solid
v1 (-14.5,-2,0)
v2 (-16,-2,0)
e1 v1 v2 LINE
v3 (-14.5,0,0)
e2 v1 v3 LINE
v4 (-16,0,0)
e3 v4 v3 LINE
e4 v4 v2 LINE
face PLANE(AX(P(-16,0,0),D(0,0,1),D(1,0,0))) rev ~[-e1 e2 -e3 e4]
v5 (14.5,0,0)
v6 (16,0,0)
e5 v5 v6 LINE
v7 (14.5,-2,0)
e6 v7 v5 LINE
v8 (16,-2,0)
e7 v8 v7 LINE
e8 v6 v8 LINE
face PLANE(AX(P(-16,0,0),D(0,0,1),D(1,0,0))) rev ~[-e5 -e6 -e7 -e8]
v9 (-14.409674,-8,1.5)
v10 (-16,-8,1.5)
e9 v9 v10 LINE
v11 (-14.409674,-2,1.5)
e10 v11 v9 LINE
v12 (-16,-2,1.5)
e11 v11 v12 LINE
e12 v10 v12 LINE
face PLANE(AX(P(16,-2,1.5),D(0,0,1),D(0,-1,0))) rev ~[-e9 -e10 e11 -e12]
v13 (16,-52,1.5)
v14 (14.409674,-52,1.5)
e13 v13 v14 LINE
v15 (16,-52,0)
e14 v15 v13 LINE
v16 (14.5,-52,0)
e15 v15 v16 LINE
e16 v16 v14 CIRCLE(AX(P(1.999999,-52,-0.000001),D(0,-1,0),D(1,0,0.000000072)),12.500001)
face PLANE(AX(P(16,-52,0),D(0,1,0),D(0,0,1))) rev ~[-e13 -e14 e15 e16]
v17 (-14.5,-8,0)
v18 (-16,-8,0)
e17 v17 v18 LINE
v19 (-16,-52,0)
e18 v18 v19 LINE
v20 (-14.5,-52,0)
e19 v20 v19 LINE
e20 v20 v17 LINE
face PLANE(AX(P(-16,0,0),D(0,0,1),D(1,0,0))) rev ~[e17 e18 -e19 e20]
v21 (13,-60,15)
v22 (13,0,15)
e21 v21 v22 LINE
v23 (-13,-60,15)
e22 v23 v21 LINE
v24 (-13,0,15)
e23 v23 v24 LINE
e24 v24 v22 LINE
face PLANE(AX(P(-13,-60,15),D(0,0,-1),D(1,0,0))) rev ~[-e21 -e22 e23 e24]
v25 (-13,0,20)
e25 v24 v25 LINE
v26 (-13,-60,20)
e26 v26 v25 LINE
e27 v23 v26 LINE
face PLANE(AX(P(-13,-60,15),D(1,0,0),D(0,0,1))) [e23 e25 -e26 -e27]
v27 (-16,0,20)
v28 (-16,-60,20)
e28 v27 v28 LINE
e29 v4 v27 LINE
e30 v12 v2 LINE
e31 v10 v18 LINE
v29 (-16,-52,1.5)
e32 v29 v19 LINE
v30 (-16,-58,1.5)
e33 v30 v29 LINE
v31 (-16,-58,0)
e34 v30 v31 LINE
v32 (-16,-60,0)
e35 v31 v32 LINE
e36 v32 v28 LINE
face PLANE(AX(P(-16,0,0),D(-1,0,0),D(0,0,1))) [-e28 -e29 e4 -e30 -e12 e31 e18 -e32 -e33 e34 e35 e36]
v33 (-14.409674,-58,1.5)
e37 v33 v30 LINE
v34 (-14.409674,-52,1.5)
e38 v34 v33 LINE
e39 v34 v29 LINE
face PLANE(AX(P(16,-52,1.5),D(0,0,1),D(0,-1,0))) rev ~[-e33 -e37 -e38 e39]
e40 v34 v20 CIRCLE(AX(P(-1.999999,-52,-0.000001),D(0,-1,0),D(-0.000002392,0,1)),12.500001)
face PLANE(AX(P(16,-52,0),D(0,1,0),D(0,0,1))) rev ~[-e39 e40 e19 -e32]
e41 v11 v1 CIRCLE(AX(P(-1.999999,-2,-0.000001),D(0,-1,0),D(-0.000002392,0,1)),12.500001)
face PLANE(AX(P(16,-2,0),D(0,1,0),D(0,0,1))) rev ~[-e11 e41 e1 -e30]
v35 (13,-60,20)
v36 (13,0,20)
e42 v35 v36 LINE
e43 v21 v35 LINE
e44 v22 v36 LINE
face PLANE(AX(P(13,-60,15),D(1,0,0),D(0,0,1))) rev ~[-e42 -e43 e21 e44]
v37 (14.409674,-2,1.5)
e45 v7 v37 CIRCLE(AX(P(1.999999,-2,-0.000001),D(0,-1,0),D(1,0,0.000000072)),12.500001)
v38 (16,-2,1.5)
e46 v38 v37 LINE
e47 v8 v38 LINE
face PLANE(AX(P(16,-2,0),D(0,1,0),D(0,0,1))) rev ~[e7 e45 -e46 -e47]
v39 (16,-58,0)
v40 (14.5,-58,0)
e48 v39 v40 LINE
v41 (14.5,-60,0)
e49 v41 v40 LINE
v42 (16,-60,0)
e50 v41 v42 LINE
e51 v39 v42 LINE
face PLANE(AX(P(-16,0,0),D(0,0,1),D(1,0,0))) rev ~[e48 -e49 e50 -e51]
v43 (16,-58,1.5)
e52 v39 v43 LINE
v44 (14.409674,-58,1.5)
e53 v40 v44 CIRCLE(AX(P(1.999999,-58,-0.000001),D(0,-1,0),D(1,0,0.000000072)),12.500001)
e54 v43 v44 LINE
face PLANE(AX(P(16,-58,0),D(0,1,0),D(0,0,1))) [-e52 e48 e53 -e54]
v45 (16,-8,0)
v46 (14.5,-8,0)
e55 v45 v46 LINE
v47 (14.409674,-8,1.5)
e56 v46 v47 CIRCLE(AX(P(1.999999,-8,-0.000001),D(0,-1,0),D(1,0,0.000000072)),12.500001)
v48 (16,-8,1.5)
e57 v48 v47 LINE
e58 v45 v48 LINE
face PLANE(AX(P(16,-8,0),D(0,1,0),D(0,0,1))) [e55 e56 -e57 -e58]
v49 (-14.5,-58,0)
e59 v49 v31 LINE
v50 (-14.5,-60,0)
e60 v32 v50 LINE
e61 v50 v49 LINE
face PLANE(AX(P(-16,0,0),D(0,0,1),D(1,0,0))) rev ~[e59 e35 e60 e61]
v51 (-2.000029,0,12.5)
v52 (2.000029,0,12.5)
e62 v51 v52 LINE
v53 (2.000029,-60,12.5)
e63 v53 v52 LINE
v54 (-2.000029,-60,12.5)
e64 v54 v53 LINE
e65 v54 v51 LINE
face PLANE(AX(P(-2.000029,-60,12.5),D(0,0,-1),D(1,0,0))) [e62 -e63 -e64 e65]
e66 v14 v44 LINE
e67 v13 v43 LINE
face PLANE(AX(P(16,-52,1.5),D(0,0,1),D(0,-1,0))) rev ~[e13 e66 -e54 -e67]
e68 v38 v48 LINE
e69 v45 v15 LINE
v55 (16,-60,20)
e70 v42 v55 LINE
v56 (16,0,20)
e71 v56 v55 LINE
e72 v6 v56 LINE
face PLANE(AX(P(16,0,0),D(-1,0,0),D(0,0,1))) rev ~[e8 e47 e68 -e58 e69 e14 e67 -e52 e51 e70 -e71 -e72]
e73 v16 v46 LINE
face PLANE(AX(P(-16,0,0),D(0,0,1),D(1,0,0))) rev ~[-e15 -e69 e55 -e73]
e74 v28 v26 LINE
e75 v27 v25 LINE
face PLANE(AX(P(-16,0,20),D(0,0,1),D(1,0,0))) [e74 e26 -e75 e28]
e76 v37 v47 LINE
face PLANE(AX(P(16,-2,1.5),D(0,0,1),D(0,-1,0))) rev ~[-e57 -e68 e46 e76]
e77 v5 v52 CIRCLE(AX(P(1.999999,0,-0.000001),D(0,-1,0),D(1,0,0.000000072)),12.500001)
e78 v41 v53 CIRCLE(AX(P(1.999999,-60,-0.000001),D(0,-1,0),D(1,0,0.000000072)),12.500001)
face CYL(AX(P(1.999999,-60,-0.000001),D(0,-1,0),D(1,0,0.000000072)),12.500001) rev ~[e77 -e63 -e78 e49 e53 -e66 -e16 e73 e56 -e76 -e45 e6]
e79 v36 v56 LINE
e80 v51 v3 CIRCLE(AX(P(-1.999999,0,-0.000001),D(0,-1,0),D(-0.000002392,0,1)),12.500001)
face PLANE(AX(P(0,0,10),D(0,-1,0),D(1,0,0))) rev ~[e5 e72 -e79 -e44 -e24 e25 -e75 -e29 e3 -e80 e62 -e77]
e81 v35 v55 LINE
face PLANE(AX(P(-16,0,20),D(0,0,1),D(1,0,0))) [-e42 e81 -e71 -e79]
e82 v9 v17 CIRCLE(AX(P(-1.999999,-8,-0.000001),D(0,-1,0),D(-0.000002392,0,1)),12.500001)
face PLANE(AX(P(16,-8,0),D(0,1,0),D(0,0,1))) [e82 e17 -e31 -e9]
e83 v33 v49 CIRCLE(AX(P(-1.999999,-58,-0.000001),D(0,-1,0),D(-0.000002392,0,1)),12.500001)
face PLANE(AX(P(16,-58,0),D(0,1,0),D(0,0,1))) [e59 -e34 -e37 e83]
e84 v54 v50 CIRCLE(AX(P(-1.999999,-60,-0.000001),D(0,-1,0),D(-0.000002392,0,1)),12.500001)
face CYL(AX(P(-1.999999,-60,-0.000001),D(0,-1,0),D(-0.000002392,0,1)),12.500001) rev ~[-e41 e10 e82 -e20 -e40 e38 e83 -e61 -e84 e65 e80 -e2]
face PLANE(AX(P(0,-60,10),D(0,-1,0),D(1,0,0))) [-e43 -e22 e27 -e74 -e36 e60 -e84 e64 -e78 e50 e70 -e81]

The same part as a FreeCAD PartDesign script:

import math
import FreeCAD as App
import Part
import Sketcher
from FreeCAD import Vector
Q = App.Units.Quantity


def add_polygon(sketch, points):
    """Adds a closed chain of lines whose ends are joined by coincident constraints."""
    first, n = sketch.GeometryCount, len(points)
    for a, b in zip(points, points[1:] + points[:1]):
        sketch.addGeometry(Part.LineSegment(App.Vector(*a, 0), App.Vector(*b, 0)), False)
    for i in range(n):
        sketch.addConstraint(Sketcher.Constraint("Coincident", first + i, 2, first + (i + 1) % n, 1))

doc = App.newDocument("Part")
body = doc.addObject("PartDesign::Body", "Body")

# Sketch on XZ plane
sketch1 = doc.addObject("Sketcher::SketchObject", "Sketch")
body.addObject(sketch1)
sketch1.AttachmentSupport = (doc.XZ_Plane, [""])
sketch1.MapMode = "FlatFace"
add_polygon(sketch1, [(-16, 20), (-16, 0), (16, 0), (16, 20)])  # lines 0-3
sketch1.addConstraint([
    Sketcher.Constraint("Vertical", 0),
    Sketcher.Constraint("Horizontal", 1),
    Sketcher.Constraint("Vertical", 2),
    Sketcher.Constraint("Horizontal", 3),
    Sketcher.Constraint("Symmetric", 0, 2, 1, 2, -1, 1),
    Sketcher.Constraint("DistanceX", 1, 1, 1, 2, Q("32 mm")),
    Sketcher.Constraint("DistanceY", 0, 2, 0, 1, Q("20 mm")),
])
pad1 = doc.addObject("PartDesign::Pad", "Pad")
body.addObject(pad1)
pad1.Profile = sketch1
pad1.Length = 60

# Sketch on XZ plane
sketch2 = doc.addObject("Sketcher::SketchObject", "Sketch001")
body.addObject(sketch2)
sketch2.AttachmentSupport = (doc.XZ_Plane, [""])
sketch2.MapMode = "FlatFace"
sketch2.AttachmentOffset = App.Placement(Vector(0, 0, 60), App.Rotation())
add_polygon(sketch2, [(-13, 20), (-13, 15), (13, 15), (13, 20)])  # lines 0-3
sketch2.addConstraint([
    Sketcher.Constraint("Vertical", 0),
    Sketcher.Constraint("Horizontal", 1),
    Sketcher.Constraint("Vertical", 2),
    Sketcher.Constraint("Horizontal", 3),
    Sketcher.Constraint("DistanceX", 1, 1, 1, 2, Q("26 mm")),
    Sketcher.Constraint("DistanceY", 0, 2, 0, 1, Q("5 mm")),
    Sketcher.Constraint("DistanceX", 0, 2, -1, 1, Q("13 mm")),
    Sketcher.Constraint("DistanceY", -1, 1, 0, 2, Q("15 mm")),
])
pocket1 = doc.addObject("PartDesign::Pocket", "Pocket")
body.addObject(pocket1)
pocket1.Profile = sketch2
pocket1.Type = "ThroughAll"

# Sketch on XZ plane
sketch3 = doc.addObject("Sketcher::SketchObject", "Sketch002")
body.addObject(sketch3)
sketch3.AttachmentSupport = (doc.XZ_Plane, [""])
sketch3.MapMode = "FlatFace"
sketch3.AttachmentOffset = App.Placement(Vector(0, 0, 60), App.Rotation())
sketch3.addGeometry([
    Part.ArcOfCircle(Part.Circle(Vector(-1.999999, -0.000001, 0), Vector(0, 0, 1), 12.500001), math.radians(90.000137), math.radians(179.999996)),
    Part.LineSegment(Vector(-14.5, 0, 0), Vector(14.5, 0, 0)),
    Part.ArcOfCircle(Part.Circle(Vector(1.999999, -0.000001, 0), Vector(0, 0, 1), 12.500001), math.radians(0.000004), math.radians(89.999863)),
    Part.LineSegment(Vector(2.000029, 12.5, 0), Vector(-2.000029, 12.5, 0)),
], False)
sketch3.addConstraint([
    Sketcher.Constraint("Coincident", 0, 2, 1, 1),
    Sketcher.Constraint("Coincident", 1, 2, 2, 1),
    Sketcher.Constraint("Coincident", 2, 2, 3, 1),
    Sketcher.Constraint("Coincident", 3, 2, 0, 1),
    Sketcher.Constraint("Horizontal", 1),
    Sketcher.Constraint("Horizontal", 3),
    Sketcher.Constraint("Equal", 0, 2),
    Sketcher.Constraint("Symmetric", 0, 3, 2, 3, -1, 1),
    Sketcher.Constraint("PointOnObject", 0, 2, -1),
    Sketcher.Constraint("Radius", 0, Q("12.500001 mm")),
    Sketcher.Constraint("DistanceX", 1, 1, 1, 2, Q("29 mm")),
    Sketcher.Constraint("DistanceX", 3, 2, 3, 1, Q("4.000058 mm")),
    Sketcher.Constraint("DistanceX", -1, 1, 2, 2, Q("2.000029 mm")),
])
pocket2 = doc.addObject("PartDesign::Pocket", "Pocket001")
body.addObject(pocket2)
pocket2.Profile = sketch3
pocket2.Type = "ThroughAll"

# Sketch on YZ plane
sketch4 = doc.addObject("Sketcher::SketchObject", "Sketch003")
body.addObject(sketch4)
sketch4.AttachmentSupport = (doc.YZ_Plane, [""])
sketch4.MapMode = "FlatFace"
sketch4.AttachmentOffset = App.Placement(Vector(0, 0, 16), App.Rotation())
add_polygon(sketch4, [(-58, 0), (-52, 0), (-52, 1.5), (-58, 1.5)])  # lines 0-3
add_polygon(sketch4, [(-8, 0), (-2, 0), (-2, 1.5), (-8, 1.5)])  # lines 4-7
sketch4.addConstraint([
    Sketcher.Constraint("Horizontal", 0),
    Sketcher.Constraint("Vertical", 1),
    Sketcher.Constraint("Horizontal", 2),
    Sketcher.Constraint("Vertical", 3),
    Sketcher.Constraint("Horizontal", 4),
    Sketcher.Constraint("Vertical", 5),
    Sketcher.Constraint("Horizontal", 6),
    Sketcher.Constraint("Vertical", 7),
    Sketcher.Constraint("PointOnObject", 0, 2, -1),
    Sketcher.Constraint("PointOnObject", 4, 2, -1),
    Sketcher.Constraint("Horizontal", 2, 2, 5, 2),
    Sketcher.Constraint("Equal", 2, 4),
    Sketcher.Constraint("DistanceX", 0, 1, 0, 2, Q("6 mm")),
    Sketcher.Constraint("DistanceY", 1, 1, 1, 2, Q("1.5 mm")),
    Sketcher.Constraint("DistanceX", 0, 2, -1, 1, Q("52 mm")),
    Sketcher.Constraint("DistanceX", 4, 2, -1, 1, Q("2 mm")),
])
pocket3 = doc.addObject("PartDesign::Pocket", "Pocket002")
body.addObject(pocket3)
pocket3.Profile = sketch4
pocket3.Type = "ThroughAll"

doc.recompute()
